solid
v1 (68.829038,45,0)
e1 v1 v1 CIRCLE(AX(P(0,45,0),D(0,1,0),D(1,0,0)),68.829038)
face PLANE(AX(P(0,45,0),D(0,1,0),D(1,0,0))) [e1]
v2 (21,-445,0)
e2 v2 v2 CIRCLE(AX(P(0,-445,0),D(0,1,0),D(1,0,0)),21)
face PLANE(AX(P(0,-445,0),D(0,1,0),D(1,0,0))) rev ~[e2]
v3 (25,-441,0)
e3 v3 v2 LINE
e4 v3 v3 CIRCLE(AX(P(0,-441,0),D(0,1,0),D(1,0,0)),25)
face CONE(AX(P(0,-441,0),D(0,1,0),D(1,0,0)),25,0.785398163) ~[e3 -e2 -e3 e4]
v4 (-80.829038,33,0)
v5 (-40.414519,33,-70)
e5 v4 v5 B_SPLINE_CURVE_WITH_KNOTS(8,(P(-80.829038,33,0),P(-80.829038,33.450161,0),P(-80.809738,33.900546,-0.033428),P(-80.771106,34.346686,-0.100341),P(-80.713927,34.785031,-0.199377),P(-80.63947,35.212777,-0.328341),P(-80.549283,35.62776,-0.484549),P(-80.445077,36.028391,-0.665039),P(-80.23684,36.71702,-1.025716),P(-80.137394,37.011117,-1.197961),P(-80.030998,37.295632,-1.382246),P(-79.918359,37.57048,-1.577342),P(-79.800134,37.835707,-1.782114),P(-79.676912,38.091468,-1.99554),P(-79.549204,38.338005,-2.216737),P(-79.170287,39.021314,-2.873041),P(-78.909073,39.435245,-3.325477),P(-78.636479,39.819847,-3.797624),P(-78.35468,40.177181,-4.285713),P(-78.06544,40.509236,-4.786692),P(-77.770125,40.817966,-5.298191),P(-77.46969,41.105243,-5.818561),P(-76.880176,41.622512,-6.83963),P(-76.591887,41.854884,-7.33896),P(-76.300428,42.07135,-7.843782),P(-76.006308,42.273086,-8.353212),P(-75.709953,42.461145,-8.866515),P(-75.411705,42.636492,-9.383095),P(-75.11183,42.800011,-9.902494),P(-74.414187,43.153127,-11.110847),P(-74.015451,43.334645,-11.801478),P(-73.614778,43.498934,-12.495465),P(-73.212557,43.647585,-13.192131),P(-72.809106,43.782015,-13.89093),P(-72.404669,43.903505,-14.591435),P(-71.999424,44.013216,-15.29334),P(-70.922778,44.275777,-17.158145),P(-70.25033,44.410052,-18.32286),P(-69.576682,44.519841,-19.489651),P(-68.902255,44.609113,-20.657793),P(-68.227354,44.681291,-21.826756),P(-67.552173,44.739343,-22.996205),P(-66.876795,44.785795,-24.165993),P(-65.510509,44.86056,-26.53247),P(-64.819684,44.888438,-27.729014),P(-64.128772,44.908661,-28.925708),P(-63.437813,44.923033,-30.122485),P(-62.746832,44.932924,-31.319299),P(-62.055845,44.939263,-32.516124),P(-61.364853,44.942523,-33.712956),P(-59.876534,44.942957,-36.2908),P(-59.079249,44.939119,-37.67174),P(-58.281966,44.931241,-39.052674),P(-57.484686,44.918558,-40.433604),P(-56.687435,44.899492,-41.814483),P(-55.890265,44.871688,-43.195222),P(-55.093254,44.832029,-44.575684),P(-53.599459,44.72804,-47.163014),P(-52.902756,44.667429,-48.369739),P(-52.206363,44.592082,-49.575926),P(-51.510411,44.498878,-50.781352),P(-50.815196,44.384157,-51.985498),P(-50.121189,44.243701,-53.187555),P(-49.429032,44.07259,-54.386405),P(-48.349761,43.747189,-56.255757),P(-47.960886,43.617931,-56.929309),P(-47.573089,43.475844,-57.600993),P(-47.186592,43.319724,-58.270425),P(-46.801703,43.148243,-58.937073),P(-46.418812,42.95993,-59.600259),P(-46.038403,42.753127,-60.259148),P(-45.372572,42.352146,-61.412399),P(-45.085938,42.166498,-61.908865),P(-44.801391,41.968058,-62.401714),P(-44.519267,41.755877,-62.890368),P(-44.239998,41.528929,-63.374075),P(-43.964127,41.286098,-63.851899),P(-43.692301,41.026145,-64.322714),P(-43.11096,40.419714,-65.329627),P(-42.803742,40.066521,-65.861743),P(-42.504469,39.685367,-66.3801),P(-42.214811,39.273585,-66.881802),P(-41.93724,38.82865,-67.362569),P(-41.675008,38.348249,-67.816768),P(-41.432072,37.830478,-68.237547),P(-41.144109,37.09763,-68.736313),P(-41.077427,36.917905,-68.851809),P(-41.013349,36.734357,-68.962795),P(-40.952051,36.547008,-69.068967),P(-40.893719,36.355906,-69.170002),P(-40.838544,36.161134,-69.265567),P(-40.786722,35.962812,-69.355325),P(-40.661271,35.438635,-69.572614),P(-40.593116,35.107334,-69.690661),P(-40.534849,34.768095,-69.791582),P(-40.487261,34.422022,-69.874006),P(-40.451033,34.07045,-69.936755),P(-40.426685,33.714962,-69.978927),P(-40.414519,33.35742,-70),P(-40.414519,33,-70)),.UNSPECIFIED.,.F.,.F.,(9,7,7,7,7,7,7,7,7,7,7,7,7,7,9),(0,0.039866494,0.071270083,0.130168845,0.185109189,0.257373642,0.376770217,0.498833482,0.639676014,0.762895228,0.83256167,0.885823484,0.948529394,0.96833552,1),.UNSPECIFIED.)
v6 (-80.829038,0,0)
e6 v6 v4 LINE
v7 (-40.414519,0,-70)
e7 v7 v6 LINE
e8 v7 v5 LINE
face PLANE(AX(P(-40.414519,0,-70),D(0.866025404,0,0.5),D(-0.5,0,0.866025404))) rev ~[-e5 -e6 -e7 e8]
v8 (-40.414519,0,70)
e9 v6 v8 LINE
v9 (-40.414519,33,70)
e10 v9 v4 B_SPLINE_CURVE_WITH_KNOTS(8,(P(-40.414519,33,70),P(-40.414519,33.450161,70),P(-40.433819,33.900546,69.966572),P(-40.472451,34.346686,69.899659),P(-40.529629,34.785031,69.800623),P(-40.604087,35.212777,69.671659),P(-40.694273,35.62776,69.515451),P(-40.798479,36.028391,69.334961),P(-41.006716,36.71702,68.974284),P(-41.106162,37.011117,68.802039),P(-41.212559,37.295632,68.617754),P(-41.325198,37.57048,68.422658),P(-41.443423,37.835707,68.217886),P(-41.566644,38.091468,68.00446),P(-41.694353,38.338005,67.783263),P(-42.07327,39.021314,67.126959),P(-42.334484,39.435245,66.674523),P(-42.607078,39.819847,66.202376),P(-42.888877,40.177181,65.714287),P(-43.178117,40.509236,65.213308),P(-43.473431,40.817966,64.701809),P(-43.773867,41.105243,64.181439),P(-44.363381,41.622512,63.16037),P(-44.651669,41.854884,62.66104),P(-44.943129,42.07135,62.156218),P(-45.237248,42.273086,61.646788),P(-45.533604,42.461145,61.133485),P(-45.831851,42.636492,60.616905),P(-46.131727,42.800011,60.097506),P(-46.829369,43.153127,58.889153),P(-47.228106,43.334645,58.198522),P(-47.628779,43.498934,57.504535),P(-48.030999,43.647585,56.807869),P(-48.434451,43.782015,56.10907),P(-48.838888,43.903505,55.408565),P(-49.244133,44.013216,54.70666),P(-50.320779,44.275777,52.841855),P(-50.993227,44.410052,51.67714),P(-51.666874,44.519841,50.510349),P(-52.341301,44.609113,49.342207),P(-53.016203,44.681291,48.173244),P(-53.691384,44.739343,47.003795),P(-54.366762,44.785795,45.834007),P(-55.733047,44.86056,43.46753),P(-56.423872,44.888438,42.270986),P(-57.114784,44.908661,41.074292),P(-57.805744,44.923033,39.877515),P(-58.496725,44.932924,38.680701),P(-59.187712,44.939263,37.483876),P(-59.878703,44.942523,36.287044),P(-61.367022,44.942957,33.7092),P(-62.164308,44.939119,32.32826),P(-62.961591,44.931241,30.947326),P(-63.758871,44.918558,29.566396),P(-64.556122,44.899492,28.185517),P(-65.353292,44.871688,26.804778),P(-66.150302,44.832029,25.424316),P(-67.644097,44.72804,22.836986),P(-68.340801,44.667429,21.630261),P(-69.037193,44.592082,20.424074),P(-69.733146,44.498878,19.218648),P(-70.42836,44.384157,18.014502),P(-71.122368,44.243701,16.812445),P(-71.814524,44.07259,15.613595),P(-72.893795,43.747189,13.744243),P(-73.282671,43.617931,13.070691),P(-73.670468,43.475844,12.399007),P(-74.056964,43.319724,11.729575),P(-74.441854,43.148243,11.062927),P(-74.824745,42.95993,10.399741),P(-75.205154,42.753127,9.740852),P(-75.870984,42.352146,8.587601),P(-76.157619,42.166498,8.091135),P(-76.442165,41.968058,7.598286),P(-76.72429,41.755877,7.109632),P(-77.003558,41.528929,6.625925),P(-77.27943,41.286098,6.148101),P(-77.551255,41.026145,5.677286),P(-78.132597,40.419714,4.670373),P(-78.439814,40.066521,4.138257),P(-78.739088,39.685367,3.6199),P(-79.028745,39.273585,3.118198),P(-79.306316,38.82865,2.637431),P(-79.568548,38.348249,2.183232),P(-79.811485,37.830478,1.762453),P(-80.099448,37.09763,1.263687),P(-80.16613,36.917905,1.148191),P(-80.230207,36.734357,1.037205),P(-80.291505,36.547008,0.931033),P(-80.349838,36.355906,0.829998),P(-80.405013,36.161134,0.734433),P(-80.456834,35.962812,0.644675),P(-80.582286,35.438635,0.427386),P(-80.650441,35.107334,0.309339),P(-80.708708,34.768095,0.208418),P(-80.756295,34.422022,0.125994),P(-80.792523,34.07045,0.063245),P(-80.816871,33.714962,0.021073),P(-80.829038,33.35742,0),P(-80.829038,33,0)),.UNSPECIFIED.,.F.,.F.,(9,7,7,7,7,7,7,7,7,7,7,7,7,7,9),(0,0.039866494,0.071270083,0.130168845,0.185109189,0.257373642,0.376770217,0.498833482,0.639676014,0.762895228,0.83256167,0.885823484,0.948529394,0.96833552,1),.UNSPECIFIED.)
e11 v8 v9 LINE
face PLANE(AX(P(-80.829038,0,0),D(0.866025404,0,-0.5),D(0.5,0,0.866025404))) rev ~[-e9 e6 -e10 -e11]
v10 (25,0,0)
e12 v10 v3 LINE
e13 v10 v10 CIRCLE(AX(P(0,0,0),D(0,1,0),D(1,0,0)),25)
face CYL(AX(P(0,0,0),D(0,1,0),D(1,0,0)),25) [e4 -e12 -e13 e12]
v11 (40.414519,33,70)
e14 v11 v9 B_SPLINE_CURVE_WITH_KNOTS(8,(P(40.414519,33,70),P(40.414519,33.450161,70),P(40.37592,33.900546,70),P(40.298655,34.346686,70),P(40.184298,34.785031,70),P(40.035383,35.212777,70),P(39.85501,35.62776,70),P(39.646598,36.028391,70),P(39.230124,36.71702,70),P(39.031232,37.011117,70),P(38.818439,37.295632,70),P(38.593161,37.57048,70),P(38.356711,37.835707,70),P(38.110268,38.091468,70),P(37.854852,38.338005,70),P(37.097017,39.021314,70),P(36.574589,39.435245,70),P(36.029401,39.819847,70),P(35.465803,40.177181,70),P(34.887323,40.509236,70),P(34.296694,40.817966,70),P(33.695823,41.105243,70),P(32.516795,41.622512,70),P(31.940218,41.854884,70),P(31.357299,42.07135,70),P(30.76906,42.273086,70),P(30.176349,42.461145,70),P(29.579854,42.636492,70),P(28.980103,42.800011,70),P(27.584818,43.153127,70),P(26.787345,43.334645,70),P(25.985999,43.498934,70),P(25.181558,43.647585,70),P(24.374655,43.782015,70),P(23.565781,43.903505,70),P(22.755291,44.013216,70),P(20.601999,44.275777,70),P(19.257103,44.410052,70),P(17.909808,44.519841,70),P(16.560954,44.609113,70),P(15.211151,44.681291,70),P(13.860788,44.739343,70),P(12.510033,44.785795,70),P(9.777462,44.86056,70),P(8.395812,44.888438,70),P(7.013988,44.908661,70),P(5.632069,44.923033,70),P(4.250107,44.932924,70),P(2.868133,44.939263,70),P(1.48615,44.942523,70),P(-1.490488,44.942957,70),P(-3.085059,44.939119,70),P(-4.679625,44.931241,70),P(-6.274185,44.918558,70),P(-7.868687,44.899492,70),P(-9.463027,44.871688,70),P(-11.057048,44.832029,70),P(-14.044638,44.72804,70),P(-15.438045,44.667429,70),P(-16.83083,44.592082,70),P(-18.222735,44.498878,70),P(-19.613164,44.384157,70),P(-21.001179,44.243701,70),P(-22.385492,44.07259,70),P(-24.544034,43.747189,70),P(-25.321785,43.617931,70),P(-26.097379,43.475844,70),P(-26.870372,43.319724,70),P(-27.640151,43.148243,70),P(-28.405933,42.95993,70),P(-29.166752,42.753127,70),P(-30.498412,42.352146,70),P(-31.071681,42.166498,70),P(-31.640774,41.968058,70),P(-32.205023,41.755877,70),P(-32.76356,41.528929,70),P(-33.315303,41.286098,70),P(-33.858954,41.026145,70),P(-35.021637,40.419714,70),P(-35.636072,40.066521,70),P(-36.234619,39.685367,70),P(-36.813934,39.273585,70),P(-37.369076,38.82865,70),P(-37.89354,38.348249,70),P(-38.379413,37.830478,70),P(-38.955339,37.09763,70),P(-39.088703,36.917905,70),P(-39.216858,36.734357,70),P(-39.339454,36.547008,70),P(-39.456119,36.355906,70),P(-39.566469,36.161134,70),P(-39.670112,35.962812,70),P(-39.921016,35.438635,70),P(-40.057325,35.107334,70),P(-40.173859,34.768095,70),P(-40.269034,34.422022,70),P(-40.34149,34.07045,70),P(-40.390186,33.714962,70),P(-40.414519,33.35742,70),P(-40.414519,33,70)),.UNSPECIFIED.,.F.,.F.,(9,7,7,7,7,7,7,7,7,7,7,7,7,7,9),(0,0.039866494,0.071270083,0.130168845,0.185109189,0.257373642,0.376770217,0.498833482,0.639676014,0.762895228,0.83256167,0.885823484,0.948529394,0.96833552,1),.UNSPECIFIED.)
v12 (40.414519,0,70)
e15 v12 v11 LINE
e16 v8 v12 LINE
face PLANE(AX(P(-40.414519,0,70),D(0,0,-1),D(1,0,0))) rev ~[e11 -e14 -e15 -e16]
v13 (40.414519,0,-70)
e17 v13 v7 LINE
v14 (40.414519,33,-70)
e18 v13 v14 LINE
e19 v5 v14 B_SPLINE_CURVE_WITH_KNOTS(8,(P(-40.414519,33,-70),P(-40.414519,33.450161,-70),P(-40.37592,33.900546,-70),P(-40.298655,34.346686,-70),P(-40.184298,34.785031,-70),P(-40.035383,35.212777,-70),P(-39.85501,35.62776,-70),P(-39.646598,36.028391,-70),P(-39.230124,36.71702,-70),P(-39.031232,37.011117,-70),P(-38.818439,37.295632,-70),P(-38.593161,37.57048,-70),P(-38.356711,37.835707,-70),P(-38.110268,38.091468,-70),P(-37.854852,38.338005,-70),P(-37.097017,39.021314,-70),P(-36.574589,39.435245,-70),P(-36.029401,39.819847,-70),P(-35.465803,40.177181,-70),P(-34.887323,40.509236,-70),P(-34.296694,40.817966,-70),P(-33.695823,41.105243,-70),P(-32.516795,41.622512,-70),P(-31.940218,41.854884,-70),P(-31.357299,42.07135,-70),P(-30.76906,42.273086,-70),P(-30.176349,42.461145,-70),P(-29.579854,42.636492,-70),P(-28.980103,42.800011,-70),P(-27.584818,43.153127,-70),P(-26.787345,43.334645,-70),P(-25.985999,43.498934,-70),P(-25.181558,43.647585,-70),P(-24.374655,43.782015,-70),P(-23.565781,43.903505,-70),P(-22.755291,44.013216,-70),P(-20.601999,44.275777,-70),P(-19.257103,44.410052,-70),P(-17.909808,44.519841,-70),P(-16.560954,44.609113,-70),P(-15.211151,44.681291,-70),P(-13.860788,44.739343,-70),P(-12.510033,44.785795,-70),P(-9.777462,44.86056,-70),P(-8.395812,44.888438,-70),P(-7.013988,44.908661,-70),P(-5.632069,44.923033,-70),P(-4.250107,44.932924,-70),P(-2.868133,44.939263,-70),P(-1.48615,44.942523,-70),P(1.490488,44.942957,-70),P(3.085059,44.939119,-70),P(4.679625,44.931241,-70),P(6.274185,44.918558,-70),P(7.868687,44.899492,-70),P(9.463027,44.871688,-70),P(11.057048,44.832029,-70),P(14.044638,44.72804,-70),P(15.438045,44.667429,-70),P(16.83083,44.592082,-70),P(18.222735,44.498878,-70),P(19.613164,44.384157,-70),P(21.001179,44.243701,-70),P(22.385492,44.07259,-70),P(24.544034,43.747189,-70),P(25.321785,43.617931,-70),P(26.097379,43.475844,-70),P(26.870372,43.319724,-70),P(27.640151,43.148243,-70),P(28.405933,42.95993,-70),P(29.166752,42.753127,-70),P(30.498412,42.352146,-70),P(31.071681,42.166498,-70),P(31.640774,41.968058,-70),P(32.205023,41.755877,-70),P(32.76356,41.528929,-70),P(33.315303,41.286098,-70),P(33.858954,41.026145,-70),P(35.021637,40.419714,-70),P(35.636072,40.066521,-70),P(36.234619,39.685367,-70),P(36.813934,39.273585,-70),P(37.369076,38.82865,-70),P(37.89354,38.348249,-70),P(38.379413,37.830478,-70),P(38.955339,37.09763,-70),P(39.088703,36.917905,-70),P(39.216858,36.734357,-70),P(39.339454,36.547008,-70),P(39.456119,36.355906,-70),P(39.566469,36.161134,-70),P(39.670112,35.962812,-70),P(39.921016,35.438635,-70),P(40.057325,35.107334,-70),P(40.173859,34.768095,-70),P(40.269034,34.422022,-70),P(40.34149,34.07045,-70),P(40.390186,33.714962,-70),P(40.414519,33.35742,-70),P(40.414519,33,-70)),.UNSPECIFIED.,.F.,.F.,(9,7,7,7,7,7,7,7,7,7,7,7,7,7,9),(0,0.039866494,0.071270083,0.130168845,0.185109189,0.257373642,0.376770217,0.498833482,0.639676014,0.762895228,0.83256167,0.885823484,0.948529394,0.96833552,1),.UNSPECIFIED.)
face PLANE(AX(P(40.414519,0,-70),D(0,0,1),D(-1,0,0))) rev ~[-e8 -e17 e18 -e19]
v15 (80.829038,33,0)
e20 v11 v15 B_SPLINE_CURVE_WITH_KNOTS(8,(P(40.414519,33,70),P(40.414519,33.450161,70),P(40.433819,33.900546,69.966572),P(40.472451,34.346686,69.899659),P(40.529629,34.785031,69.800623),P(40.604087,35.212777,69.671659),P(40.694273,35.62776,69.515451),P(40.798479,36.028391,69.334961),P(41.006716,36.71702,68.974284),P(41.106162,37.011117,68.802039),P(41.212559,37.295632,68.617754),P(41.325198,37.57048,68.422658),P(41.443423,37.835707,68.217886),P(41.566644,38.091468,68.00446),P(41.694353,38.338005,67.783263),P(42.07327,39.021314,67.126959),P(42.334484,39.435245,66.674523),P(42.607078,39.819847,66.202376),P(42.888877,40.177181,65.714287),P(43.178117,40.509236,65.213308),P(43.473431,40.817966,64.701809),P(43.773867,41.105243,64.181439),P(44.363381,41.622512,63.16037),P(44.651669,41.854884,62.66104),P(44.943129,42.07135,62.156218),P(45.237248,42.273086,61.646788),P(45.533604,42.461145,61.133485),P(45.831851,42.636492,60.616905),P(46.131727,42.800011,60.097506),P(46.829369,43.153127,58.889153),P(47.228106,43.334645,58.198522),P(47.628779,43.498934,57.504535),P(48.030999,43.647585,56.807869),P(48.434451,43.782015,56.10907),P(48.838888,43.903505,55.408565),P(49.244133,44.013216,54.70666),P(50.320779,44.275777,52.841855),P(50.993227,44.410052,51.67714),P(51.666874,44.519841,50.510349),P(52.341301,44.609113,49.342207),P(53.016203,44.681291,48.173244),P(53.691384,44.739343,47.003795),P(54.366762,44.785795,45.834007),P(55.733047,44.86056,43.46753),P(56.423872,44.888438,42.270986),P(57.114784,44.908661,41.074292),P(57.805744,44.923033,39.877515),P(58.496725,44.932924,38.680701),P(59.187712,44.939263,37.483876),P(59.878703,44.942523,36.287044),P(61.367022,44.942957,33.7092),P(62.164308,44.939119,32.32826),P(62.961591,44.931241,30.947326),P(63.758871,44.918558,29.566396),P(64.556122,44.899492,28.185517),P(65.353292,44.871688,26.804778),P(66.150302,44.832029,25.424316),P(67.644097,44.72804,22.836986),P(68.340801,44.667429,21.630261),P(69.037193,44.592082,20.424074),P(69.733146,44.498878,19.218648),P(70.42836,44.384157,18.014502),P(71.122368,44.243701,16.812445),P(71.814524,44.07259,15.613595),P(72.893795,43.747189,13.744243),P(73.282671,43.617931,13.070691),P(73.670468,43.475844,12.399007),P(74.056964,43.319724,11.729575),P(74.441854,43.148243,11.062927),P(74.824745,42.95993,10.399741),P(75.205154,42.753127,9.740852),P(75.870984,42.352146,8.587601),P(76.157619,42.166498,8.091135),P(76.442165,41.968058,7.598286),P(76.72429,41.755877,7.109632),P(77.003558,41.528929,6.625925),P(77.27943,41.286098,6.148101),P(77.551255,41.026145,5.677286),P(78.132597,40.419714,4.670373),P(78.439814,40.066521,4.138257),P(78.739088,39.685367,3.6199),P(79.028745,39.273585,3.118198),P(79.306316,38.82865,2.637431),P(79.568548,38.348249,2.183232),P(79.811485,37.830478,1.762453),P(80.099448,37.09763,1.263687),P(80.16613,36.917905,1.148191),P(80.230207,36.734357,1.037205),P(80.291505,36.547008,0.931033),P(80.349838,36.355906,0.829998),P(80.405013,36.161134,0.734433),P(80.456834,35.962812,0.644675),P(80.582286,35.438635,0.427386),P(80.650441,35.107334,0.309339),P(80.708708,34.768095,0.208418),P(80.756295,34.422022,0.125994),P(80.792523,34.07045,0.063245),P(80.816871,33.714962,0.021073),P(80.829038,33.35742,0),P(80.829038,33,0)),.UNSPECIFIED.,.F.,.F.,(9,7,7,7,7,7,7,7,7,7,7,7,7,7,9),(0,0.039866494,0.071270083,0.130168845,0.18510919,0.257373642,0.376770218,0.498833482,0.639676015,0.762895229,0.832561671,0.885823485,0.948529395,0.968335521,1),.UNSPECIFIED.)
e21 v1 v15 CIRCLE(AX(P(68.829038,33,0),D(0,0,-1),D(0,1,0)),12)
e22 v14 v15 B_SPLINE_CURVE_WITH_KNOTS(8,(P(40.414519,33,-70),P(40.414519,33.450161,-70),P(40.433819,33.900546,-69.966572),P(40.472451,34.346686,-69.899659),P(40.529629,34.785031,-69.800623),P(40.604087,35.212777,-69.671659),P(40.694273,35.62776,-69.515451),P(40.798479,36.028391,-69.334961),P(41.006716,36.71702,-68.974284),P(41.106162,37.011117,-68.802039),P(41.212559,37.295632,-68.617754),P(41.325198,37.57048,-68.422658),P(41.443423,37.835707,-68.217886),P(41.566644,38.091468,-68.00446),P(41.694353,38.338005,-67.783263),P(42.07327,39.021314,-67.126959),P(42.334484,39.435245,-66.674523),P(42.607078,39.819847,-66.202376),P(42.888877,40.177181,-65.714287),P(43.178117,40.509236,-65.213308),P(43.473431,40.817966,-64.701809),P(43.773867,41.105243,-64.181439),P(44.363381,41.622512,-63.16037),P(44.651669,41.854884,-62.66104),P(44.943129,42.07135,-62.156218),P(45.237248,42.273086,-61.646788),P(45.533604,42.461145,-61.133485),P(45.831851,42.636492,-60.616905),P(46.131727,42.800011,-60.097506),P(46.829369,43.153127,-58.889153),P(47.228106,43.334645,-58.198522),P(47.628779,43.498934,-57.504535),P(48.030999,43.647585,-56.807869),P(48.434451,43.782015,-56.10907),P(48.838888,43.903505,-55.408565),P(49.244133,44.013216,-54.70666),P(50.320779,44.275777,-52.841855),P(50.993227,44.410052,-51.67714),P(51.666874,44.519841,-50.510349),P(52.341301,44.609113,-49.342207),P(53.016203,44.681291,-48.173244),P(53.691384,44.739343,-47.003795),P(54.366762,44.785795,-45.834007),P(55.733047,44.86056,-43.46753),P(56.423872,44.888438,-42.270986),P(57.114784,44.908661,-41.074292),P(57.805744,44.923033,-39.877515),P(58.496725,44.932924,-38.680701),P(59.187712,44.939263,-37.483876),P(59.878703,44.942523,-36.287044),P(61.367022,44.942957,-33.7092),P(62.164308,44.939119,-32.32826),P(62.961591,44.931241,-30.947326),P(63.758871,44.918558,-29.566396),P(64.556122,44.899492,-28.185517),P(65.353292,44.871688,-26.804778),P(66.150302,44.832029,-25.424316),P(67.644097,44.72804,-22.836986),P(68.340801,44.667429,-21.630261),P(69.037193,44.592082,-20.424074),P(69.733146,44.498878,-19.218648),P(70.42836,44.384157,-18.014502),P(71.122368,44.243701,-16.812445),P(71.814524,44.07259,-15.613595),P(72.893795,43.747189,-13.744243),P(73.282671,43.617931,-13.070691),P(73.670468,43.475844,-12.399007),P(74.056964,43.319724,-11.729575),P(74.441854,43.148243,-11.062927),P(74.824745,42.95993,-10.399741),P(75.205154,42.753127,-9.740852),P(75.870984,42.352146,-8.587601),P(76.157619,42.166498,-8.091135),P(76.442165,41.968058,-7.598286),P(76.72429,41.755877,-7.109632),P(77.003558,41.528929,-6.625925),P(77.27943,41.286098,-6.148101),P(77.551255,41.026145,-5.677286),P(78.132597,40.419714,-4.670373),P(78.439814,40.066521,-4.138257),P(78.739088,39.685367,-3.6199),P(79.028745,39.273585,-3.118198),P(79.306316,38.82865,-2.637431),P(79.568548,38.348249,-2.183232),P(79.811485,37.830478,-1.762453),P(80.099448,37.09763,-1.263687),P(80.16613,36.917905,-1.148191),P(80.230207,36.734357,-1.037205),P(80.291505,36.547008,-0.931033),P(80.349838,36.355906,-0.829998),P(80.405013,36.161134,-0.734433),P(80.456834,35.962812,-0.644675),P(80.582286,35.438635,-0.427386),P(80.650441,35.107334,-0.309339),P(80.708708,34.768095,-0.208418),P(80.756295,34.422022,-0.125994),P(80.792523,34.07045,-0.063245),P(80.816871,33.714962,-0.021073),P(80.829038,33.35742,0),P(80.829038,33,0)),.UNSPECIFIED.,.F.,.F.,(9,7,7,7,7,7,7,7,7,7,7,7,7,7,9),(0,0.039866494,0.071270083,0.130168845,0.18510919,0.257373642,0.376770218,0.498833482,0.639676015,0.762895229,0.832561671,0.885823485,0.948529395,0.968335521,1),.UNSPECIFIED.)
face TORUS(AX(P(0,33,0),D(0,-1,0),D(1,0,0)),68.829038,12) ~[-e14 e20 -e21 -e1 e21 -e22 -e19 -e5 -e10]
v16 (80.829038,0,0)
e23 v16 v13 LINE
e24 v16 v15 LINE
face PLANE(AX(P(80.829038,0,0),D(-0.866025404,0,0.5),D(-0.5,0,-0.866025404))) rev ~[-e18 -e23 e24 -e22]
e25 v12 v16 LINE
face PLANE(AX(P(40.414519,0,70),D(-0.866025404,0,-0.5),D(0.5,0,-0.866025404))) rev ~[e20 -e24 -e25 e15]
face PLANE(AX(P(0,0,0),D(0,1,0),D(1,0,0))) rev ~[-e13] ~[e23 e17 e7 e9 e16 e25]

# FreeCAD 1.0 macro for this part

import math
import FreeCAD as App
import Part
import Sketcher
from FreeCAD import Vector
Q = App.Units.Quantity


def edges_at(feature, points):
    """Names of the edges that pass closest to the given points."""
    edges = feature.Shape.Edges
    near = lambda p: min(range(len(edges)), key=lambda i: edges[i].distToShape(Part.Vertex(*p))[0])
    return sorted({f"Edge{near(p) + 1}" for p in points})

doc = App.newDocument("Part")
body = doc.addObject("PartDesign::Body", "Body")

# Sketch on XZ plane
sketch1 = body.newObject("Sketcher::SketchObject", "Sketch")
sketch1.AttachmentSupport = (doc.getObject("XZ_Plane"), [""])
sketch1.MapMode = "FlatFace"
sketch1.addGeometry(Part.LineSegment(Vector(81, 0, 0), Vector(40, -70, 0)), False)
sketch1.addGeometry(Part.LineSegment(Vector(40, -70, 0), Vector(-40, -70, 0)), False)
sketch1.addGeometry(Part.LineSegment(Vector(-40, -70, 0), Vector(-81, 0, 0)), False)
sketch1.addGeometry(Part.LineSegment(Vector(-81, 0, 0), Vector(-40, 70, 0)), False)
sketch1.addGeometry(Part.LineSegment(Vector(-40, 70, 0), Vector(40, 70, 0)), False)
sketch1.addGeometry(Part.LineSegment(Vector(40, 70, 0), Vector(81, 0, 0)), False)
sketch1.addConstraint(Sketcher.Constraint("Coincident", 0, 2, 1, 1))
sketch1.addConstraint(Sketcher.Constraint("Coincident", 1, 2, 2, 1))
sketch1.addConstraint(Sketcher.Constraint("Coincident", 2, 2, 3, 1))
sketch1.addConstraint(Sketcher.Constraint("Coincident", 3, 2, 4, 1))
sketch1.addConstraint(Sketcher.Constraint("Coincident", 4, 2, 5, 1))
sketch1.addConstraint(Sketcher.Constraint("Coincident", 5, 2, 0, 1))
sketch1.addConstraint(Sketcher.Constraint("Horizontal", 1))
sketch1.addConstraint(Sketcher.Constraint("Horizontal", 4))
sketch1.addConstraint(Sketcher.Constraint("Symmetric", 0, 2, 3, 2, -1, 1))
sketch1.addConstraint(Sketcher.Constraint("Symmetric", 2, 2, 5, 2, -1, 1))
sketch1.addConstraint(Sketcher.Constraint("PointOnObject", 2, 2, -1))
sketch1.addConstraint(Sketcher.Constraint("Parallel", 2, 5))
sketch1.addConstraint(Sketcher.Constraint("Vertical", 1, 2, 3, 2))
sketch1.addConstraint(Sketcher.Constraint("Angle", 0, Q("-120 deg")))
sketch1.addConstraint(Sketcher.Constraint("DistanceY", 0, 2, -1, 1, 70.0))
sketch1.addConstraint(Sketcher.Constraint("DistanceX", 1, 2, 1, 1, 80.829038))
pad1 = body.newObject("PartDesign::Pad", "Pad")
pad1.Profile = sketch1
pad1.Length = 45
pad1.Reversed = True

# Sketch on XZ plane
sketch2 = body.newObject("Sketcher::SketchObject", "Sketch001")
sketch2.AttachmentSupport = (doc.getObject("XZ_Plane"), [""])
sketch2.MapMode = "FlatFace"
sketch2.addGeometry(Part.Circle(Vector(0, 0, 0), Vector(0, 0, 1), 25), False)
sketch2.addConstraint(Sketcher.Constraint("Coincident", 0, 3, -1, 1))
sketch2.addConstraint(Sketcher.Constraint("Diameter", 0, 50.0))
pad2 = body.newObject("PartDesign::Pad", "Pad001")
pad2.Profile = sketch2
pad2.Length = 445

# Sketch on XY plane
sketch3 = body.newObject("Sketcher::SketchObject", "Sketch002")
sketch3.AttachmentSupport = (doc.getObject("XY_Plane"), [""])
sketch3.MapMode = "FlatFace"
sketch3.addGeometry(Part.LineSegment(Vector(81, 33, 0), Vector(81, 45, 0)), False)
sketch3.addGeometry(Part.LineSegment(Vector(81, 45, 0), Vector(69, 45, 0)), False)
sketch3.addGeometry(Part.ArcOfCircle(Part.Circle(Vector(69, 33, 0), Vector(0, 0, 1), 12), math.radians(0), math.radians(90)), False)
sketch3.addConstraint(Sketcher.Constraint("Coincident", 0, 2, 1, 1))
sketch3.addConstraint(Sketcher.Constraint("Tangent", 1, 2, 2, 2))
sketch3.addConstraint(Sketcher.Constraint("Tangent", 2, 1, 0, 1))
sketch3.addConstraint(Sketcher.Constraint("Vertical", 0))
sketch3.addConstraint(Sketcher.Constraint("Horizontal", 1))
sketch3.addConstraint(Sketcher.Constraint("Radius", 2, 12.0))
sketch3.addConstraint(Sketcher.Constraint("DistanceY", -1, 1, 2, 3, 33.0))
sketch3.addConstraint(Sketcher.Constraint("DistanceX", -1, 1, 2, 3, 68.829038))
groove = body.newObject("PartDesign::Groove", "Groove")
groove.Profile = sketch3
groove.ReferenceAxis = (sketch3, ["V_Axis"])
groove.Angle = 360
doc.recompute()

chamfer = body.newObject("PartDesign::Chamfer", "Chamfer")
chamfer.Base = (groove, edges_at(groove, [(-25, -445, 0)]))
chamfer.Size = 4

doc.recompute()
